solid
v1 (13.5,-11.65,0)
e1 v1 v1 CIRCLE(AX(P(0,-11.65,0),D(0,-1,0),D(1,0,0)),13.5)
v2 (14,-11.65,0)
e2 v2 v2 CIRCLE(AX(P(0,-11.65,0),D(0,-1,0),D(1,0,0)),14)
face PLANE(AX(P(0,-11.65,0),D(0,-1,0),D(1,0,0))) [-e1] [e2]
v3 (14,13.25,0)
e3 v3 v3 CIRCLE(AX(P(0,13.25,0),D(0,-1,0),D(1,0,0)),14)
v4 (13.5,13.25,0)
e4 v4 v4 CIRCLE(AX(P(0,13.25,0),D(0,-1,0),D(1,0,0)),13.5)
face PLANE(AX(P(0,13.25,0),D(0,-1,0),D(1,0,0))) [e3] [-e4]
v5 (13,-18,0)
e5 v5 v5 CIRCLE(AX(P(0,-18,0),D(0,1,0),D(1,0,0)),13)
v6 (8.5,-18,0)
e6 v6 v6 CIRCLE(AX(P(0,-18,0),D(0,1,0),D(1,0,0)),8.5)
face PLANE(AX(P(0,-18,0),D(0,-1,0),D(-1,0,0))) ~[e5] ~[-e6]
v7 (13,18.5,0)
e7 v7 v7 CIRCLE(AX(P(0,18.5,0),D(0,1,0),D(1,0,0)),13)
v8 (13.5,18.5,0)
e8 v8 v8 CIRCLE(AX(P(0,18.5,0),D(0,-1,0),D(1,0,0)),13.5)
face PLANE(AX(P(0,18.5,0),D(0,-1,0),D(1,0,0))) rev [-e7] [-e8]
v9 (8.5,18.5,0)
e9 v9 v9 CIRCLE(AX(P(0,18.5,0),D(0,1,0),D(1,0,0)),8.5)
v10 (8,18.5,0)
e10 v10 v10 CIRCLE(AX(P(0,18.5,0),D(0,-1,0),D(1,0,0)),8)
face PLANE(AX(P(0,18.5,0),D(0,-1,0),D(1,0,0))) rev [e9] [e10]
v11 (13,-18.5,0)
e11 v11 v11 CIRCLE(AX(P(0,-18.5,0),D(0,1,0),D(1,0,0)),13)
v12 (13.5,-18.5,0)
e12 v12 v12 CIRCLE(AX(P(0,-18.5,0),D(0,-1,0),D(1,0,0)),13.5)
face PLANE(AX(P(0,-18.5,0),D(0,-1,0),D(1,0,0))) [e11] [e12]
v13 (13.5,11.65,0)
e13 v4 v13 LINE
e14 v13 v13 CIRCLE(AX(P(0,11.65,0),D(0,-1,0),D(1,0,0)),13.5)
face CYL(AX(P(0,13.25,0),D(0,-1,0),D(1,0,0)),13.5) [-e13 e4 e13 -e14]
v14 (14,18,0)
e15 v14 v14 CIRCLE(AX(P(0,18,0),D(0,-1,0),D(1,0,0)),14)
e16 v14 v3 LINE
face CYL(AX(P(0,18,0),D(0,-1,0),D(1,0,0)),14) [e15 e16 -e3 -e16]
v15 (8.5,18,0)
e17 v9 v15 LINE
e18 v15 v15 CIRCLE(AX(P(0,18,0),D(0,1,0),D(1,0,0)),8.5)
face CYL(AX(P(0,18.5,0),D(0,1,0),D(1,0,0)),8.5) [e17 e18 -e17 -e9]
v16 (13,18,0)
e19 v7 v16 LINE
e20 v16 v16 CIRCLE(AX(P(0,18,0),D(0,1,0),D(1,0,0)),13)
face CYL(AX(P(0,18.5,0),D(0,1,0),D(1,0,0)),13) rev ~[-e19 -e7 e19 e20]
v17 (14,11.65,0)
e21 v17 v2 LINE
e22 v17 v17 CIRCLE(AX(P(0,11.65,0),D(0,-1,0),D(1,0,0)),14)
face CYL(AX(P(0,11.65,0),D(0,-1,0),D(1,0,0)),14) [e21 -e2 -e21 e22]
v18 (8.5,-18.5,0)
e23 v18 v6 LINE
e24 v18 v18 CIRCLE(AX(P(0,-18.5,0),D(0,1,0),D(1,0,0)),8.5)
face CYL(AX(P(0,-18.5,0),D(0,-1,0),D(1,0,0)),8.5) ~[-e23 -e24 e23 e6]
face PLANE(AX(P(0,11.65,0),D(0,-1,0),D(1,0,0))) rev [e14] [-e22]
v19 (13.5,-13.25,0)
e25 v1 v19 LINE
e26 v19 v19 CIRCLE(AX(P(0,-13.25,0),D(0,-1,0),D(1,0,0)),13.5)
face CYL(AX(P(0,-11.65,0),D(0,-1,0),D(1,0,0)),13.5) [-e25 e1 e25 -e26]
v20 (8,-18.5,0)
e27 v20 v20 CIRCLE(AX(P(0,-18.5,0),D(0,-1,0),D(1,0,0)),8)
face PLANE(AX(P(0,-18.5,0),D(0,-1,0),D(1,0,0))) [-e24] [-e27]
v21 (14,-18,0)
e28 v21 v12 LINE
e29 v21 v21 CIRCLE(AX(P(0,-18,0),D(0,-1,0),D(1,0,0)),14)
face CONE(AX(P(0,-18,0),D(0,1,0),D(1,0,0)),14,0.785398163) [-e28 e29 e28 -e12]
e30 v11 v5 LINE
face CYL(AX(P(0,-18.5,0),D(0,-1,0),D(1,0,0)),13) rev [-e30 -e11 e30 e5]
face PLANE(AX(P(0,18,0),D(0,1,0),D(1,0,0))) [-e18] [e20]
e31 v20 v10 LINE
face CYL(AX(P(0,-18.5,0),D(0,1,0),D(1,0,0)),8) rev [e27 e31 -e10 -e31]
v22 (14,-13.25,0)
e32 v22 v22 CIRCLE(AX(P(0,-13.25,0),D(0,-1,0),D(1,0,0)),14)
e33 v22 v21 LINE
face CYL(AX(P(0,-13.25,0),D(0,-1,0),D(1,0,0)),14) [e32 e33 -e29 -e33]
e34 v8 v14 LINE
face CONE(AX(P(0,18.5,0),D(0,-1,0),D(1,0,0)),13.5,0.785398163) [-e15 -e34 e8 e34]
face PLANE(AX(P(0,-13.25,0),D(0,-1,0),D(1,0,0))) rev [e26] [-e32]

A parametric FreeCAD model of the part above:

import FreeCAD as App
import Part
import Sketcher

doc = App.newDocument("Part")
params = doc.addObject("Spreadsheet::Sheet", "Params")
for row, (alias, value) in enumerate([
    ("sketch1_height", "37 mm"),
    ("sketch1_width", "5.5 mm"),
    ("sketch1_width2", "0.5 mm"),
    ("sketch1_height2", "1.6 mm"),
    ("sketch1_height3", "23.3 mm"),
    ("revolution_angle", "360 deg"),
    ("sketch2_diameter", "26 mm"),
    ("sketch2_diameter2", "17 mm"),
    ("pocket1_length", "0.5 mm"),
], start=1):
    params.set(f"A{row}", alias)
    params.set(f"B{row}", "=" + value)
    params.setAlias(f"B{row}", alias)

body = doc.addObject("PartDesign::Body", "Body")

# Sketch on XY plane
sketch1 = body.newObject("Sketcher::SketchObject", "Sketch")
sketch1.AttachmentSupport = (doc.getObject("XY_Plane"), [""])
sketch1.MapMode = "FlatFace"
sketch1.addGeometry([
    Part.LineSegment(App.Vector(8, 18.5, 0), App.Vector(8, -18.5, 0)),  # 0
    Part.LineSegment(App.Vector(8, -18.5, 0), App.Vector(13.5, -18.5, 0)),  # 1
    Part.LineSegment(App.Vector(13.5, -18.5, 0), App.Vector(14, -18, 0)),  # 2
    Part.LineSegment(App.Vector(14, -18, 0), App.Vector(14, -13.25, 0)),  # 3
    Part.LineSegment(App.Vector(14, -13.25, 0), App.Vector(13.5, -13.25, 0)),  # 4
    Part.LineSegment(App.Vector(13.5, -13.25, 0), App.Vector(13.5, -11.65, 0)),  # 5
    Part.LineSegment(App.Vector(13.5, -11.65, 0), App.Vector(14, -11.65, 0)),  # 6
    Part.LineSegment(App.Vector(14, -11.65, 0), App.Vector(14, 11.65, 0)),  # 7
    Part.LineSegment(App.Vector(14, 11.65, 0), App.Vector(13.5, 11.65, 0)),  # 8
    Part.LineSegment(App.Vector(13.5, 11.65, 0), App.Vector(13.5, 13.25, 0)),  # 9
    Part.LineSegment(App.Vector(13.5, 13.25, 0), App.Vector(14, 13.25, 0)),  # 10
    Part.LineSegment(App.Vector(14, 13.25, 0), App.Vector(14, 18, 0)),  # 11
    Part.LineSegment(App.Vector(14, 18, 0), App.Vector(13.5, 18.5, 0)),  # 12
    Part.LineSegment(App.Vector(13.5, 18.5, 0), App.Vector(8, 18.5, 0)),  # 13
], False)
sketch1.addConstraint([
    Sketcher.Constraint("Coincident", 0, 2, 1, 1),
    Sketcher.Constraint("Coincident", 1, 2, 2, 1),
    Sketcher.Constraint("Coincident", 2, 2, 3, 1),
    Sketcher.Constraint("Coincident", 3, 2, 4, 1),
    Sketcher.Constraint("Coincident", 4, 2, 5, 1),
    Sketcher.Constraint("Coincident", 5, 2, 6, 1),
    Sketcher.Constraint("Coincident", 6, 2, 7, 1),
    Sketcher.Constraint("Coincident", 7, 2, 8, 1),
    Sketcher.Constraint("Coincident", 8, 2, 9, 1),
    Sketcher.Constraint("Coincident", 9, 2, 10, 1),
    Sketcher.Constraint("Coincident", 10, 2, 11, 1),
    Sketcher.Constraint("Coincident", 11, 2, 12, 1),
    Sketcher.Constraint("Coincident", 12, 2, 13, 1),
    Sketcher.Constraint("Coincident", 13, 2, 0, 1),
    Sketcher.Constraint("Vertical", 0),
    Sketcher.Constraint("Horizontal", 1),
    Sketcher.Constraint("Vertical", 3),
    Sketcher.Constraint("Horizontal", 4),
    Sketcher.Constraint("Vertical", 5),
    Sketcher.Constraint("Horizontal", 6),
    Sketcher.Constraint("Vertical", 7),
    Sketcher.Constraint("Horizontal", 8),
    Sketcher.Constraint("Vertical", 9),
    Sketcher.Constraint("Horizontal", 10),
    Sketcher.Constraint("Vertical", 11),
    Sketcher.Constraint("Horizontal", 13),
    Sketcher.Constraint("Symmetric", 5, 2, 8, 2, -1),
    Sketcher.Constraint("Symmetric", 3, 2, 10, 2, -1),
    Sketcher.Constraint("Symmetric", 1, 2, 12, 2, -1),
    Sketcher.Constraint("Perpendicular", 2, 12),
    Sketcher.Constraint("Vertical", 1, 2, 4, 2),
    Sketcher.Constraint("Vertical", 3, 2, 6, 2),
    Sketcher.Constraint("Equal", 3, 11),
    Sketcher.Constraint("DistanceY", 0, 2, 0, 1, 37.0),
    Sketcher.Constraint("DistanceX", 1, 1, 1, 2, 5.5),
    Sketcher.Constraint("DistanceX", 4, 2, 4, 1, 0.5),
    Sketcher.Constraint("DistanceY", 5, 1, 5, 2, 1.6),
    Sketcher.Constraint("DistanceY", 7, 1, 7, 2, 23.3),
    Sketcher.Constraint("DistanceX", -1, 1, 0, 2, 8.0),
])
sketch1.setExpression("Constraints[33]", "Params.sketch1_height")
sketch1.setExpression("Constraints[34]", "Params.sketch1_width")
sketch1.setExpression("Constraints[35]", "Params.sketch1_width2")
sketch1.setExpression("Constraints[36]", "Params.sketch1_height2")
sketch1.setExpression("Constraints[37]", "Params.sketch1_height3")
revolution = body.newObject("PartDesign::Revolution", "Revolution")
revolution.Profile = sketch1
revolution.ReferenceAxis = (sketch1, ["V_Axis"])
revolution.setExpression("Angle", "Params.revolution_angle")

# Sketch on XZ plane
sketch2 = body.newObject("Sketcher::SketchObject", "Sketch001")
sketch2.AttachmentSupport = (doc.getObject("XZ_Plane"), [""])
sketch2.MapMode = "FlatFace"
sketch2.AttachmentOffset = App.Placement(App.Vector(0, 0, -18.5), App.Rotation())
sketch2.addGeometry([
    Part.Circle(App.Vector(0, 0, 0), App.Vector(0, 0, 1), 13),
    Part.Circle(App.Vector(0, 0, 0), App.Vector(0, 0, 1), 8.5),
], False)
sketch2.addConstraint([
    Sketcher.Constraint("Coincident", 0, 3, -1, 1),
    Sketcher.Constraint("Coincident", 1, 3, -1, 1),
    Sketcher.Constraint("Diameter", 0, 26.0),
    Sketcher.Constraint("Diameter", 1, 17.0),
])
sketch2.setExpression("Constraints[2]", "Params.sketch2_diameter")
sketch2.setExpression("Constraints[3]", "Params.sketch2_diameter2")
pocket1 = body.newObject("PartDesign::Pocket", "Pocket")
pocket1.Profile = sketch2
pocket1.setExpression("Length", "Params.pocket1_length")
pocket1.Reversed = True
doc.recompute()

mirrored = body.newObject("PartDesign::Mirrored", "Mirrored")
mirrored.Originals = [pocket1]
mirrored.MirrorPlane = (doc.getObject("XZ_Plane"), [""])
body.Tip = mirrored

doc.recompute()
